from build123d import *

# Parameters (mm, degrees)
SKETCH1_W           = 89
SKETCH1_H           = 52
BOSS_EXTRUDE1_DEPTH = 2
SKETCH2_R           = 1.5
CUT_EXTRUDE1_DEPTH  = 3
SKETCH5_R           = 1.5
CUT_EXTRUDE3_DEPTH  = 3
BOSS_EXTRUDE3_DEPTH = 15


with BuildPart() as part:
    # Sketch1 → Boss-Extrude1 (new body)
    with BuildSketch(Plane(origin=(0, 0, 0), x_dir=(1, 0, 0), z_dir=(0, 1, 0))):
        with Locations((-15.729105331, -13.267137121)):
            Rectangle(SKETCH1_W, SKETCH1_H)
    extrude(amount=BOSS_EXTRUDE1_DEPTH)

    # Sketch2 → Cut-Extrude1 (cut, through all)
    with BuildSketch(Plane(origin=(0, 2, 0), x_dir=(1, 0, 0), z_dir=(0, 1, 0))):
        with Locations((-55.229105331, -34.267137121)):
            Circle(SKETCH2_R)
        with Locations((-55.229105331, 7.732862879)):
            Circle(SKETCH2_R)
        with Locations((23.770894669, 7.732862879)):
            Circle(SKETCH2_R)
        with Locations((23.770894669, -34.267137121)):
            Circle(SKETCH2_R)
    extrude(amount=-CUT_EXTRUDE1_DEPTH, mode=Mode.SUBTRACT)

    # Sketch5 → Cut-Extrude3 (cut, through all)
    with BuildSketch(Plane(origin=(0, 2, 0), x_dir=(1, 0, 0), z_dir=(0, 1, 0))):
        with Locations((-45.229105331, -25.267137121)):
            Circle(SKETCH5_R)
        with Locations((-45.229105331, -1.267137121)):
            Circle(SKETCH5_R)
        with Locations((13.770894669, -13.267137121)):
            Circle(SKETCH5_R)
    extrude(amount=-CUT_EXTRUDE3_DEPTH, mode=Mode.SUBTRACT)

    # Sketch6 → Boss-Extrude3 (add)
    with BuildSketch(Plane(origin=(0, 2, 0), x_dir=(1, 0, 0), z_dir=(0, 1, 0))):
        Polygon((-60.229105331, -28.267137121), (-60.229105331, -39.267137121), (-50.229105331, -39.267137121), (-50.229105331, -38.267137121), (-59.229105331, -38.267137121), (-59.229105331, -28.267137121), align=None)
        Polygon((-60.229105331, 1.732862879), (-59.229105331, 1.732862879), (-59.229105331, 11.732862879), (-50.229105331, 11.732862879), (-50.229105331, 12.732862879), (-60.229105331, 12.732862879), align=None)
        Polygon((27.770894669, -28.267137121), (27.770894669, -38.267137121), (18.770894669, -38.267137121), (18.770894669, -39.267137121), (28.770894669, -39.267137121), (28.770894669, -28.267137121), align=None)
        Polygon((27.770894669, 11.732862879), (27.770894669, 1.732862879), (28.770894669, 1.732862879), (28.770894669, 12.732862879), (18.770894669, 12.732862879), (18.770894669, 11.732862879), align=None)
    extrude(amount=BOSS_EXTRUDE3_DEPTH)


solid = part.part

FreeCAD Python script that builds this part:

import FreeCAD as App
import Part
import Sketcher

V = App.Vector

doc = App.newDocument("Part")
body = doc.addObject("PartDesign::Body", "Body")

# Sketch on XZ plane
sketch1 = body.newObject("Sketcher::SketchObject", "Sketch")
sketch1.AttachmentSupport = (doc.getObject("XZ_Plane"), [""])
sketch1.MapMode = "FlatFace"
sketch1.addGeometry(Part.LineSegment(V(-60, -13, 0), V(-60, 39, 0)), False)
sketch1.addGeometry(Part.LineSegment(V(-60, 39, 0), V(29, 39, 0)), False)
sketch1.addGeometry(Part.LineSegment(V(29, 39, 0), V(29, -13, 0)), False)
sketch1.addGeometry(Part.LineSegment(V(29, -13, 0), V(-60, -13, 0)), False)
sketch1.addConstraint(Sketcher.Constraint("Coincident", 0, 2, 1, 1))
sketch1.addConstraint(Sketcher.Constraint("Coincident", 1, 2, 2, 1))
sketch1.addConstraint(Sketcher.Constraint("Coincident", 2, 2, 3, 1))
sketch1.addConstraint(Sketcher.Constraint("Coincident", 3, 2, 0, 1))
sketch1.addConstraint(Sketcher.Constraint("Vertical", 0))
sketch1.addConstraint(Sketcher.Constraint("Horizontal", 1))
sketch1.addConstraint(Sketcher.Constraint("Vertical", 2))
sketch1.addConstraint(Sketcher.Constraint("Horizontal", 3))
sketch1.addConstraint(Sketcher.Constraint("DistanceX", 1, 1, 1, 2, 89.0))
sketch1.addConstraint(Sketcher.Constraint("DistanceY", 0, 1, 0, 2, 52.0))
sketch1.addConstraint(Sketcher.Constraint("DistanceX", 0, 2, -1, 1, 60.229105))
sketch1.addConstraint(Sketcher.Constraint("DistanceY", -1, 1, 0, 2, 39.267137))
pad1 = body.newObject("PartDesign::Pad", "Pad")
pad1.Profile = sketch1
pad1.Length = 2
pad1.Reversed = True

# Sketch on XZ plane
sketch2 = body.newObject("Sketcher::SketchObject", "Sketch001")
sketch2.AttachmentSupport = (doc.getObject("XZ_Plane"), [""])
sketch2.MapMode = "FlatFace"
sketch2.AttachmentOffset = App.Placement(V(0, 0, -2), App.Rotation())
sketch2.addGeometry(Part.Circle(V(-55.2, 34.3, 0), V(0, 0, 1), 1.5), False)
sketch2.addGeometry(Part.Circle(V(-55.2, -7.7, 0), V(0, 0, 1), 1.5), False)
sketch2.addGeometry(Part.Circle(V(23.8, -7.7, 0), V(0, 0, 1), 1.5), False)
sketch2.addGeometry(Part.Circle(V(23.8, 34.3, 0), V(0, 0, 1), 1.5), False)
sketch2.addConstraint(Sketcher.Constraint("Equal", 0, 1))
sketch2.addConstraint(Sketcher.Constraint("Equal", 1, 2))
sketch2.addConstraint(Sketcher.Constraint("Equal", 2, 3))
sketch2.addConstraint(Sketcher.Constraint("Horizontal", 1, 3, 2, 3))
sketch2.addConstraint(Sketcher.Constraint("Horizontal", 0, 3, 3, 3))
sketch2.addConstraint(Sketcher.Constraint("Vertical", 0, 3, 1, 3))
sketch2.addConstraint(Sketcher.Constraint("Vertical", 2, 3, 3, 3))
sketch2.addConstraint(Sketcher.Constraint("Diameter", 0, 3.0))
sketch2.addConstraint(Sketcher.Constraint("DistanceY", 1, 3, 0, 3, 42.0))
sketch2.addConstraint(Sketcher.Constraint("DistanceX", 1, 3, 2, 3, 79.0))
sketch2.addConstraint(Sketcher.Constraint("DistanceX", 0, 3, -1, 1, 55.229105))
sketch2.addConstraint(Sketcher.Constraint("DistanceY", -1, 1, 0, 3, 34.267137))
pocket1 = body.newObject("PartDesign::Pocket", "Pocket")
pocket1.Profile = sketch2
pocket1.Type = "ThroughAll"
pocket1.Reversed = True

# Sketch on XZ plane
sketch3 = body.newObject("Sketcher::SketchObject", "Sketch002")
sketch3.AttachmentSupport = (doc.getObject("XZ_Plane"), [""])
sketch3.MapMode = "FlatFace"
sketch3.AttachmentOffset = App.Placement(V(0, 0, -2), App.Rotation())
sketch3.addGeometry(Part.Circle(V(-45.2, 25.3, 0), V(0, 0, 1), 1.5), False)
sketch3.addGeometry(Part.Circle(V(-45.2, 1.3, 0), V(0, 0, 1), 1.5), False)
sketch3.addGeometry(Part.Circle(V(13.8, 13.3, 0), V(0, 0, 1), 1.5), False)
sketch3.addConstraint(Sketcher.Constraint("Equal", 0, 1))
sketch3.addConstraint(Sketcher.Constraint("Equal", 1, 2))
sketch3.addConstraint(Sketcher.Constraint("Vertical", 0, 3, 1, 3))
sketch3.addConstraint(Sketcher.Constraint("Diameter", 0, 3.0))
sketch3.addConstraint(Sketcher.Constraint("DistanceY", 1, 3, 0, 3, 24.0))
sketch3.addConstraint(Sketcher.Constraint("DistanceX", 0, 3, 2, 3, 59.0))
sketch3.addConstraint(Sketcher.Constraint("DistanceY", 2, 3, 0, 3, 12.0))
sketch3.addConstraint(Sketcher.Constraint("DistanceX", 0, 3, -1, 1, 45.229105))
sketch3.addConstraint(Sketcher.Constraint("DistanceY", -1, 1, 0, 3, 25.267137))
pocket2 = body.newObject("PartDesign::Pocket", "Pocket001")
pocket2.Profile = sketch3
pocket2.Type = "ThroughAll"
pocket2.Reversed = True

# Sketch on XZ plane
sketch4 = body.newObject("Sketcher::SketchObject", "Sketch003")
sketch4.AttachmentSupport = (doc.getObject("XZ_Plane"), [""])
sketch4.MapMode = "FlatFace"
sketch4.AttachmentOffset = App.Placement(V(0, 0, -2), App.Rotation())
sketch4.addGeometry(Part.LineSegment(V(-60.2, 28.3, 0), V(-60.2, 39.3, 0)), False)
sketch4.addGeometry(Part.LineSegment(V(-60.2, 39.3, 0), V(-50.2, 39.3, 0)), False)
sketch4.addGeometry(Part.LineSegment(V(-50.2, 39.3, 0), V(-50.2, 38.3, 0)), False)
sketch4.addGeometry(Part.LineSegment(V(-50.2, 38.3, 0), V(-59.2, 38.3, 0)), False)
sketch4.addGeometry(Part.LineSegment(V(-59.2, 38.3, 0), V(-59.2, 28.3, 0)), False)
sketch4.addGeometry(Part.LineSegment(V(-59.2, 28.3, 0), V(-60.2, 28.3, 0)), False)
sketch4.addGeometry(Part.LineSegment(V(-60.2, -1.7, 0), V(-59.2, -1.7, 0)), False)
sketch4.addGeometry(Part.LineSegment(V(-59.2, -1.7, 0), V(-59.2, -11.7, 0)), False)
sketch4.addGeometry(Part.LineSegment(V(-59.2, -11.7, 0), V(-50.2, -11.7, 0)), False)
sketch4.addGeometry(Part.LineSegment(V(-50.2, -11.7, 0), V(-50.2, -12.7, 0)), False)
sketch4.addGeometry(Part.LineSegment(V(-50.2, -12.7, 0), V(-60.2, -12.7, 0)), False)
sketch4.addGeometry(Part.LineSegment(V(-60.2, -12.7, 0), V(-60.2, -1.7, 0)), False)
sketch4.addGeometry(Part.LineSegment(V(27.8, 28.3, 0), V(27.8, 38.3, 0)), False)
sketch4.addGeometry(Part.LineSegment(V(27.8, 38.3, 0), V(18.8, 38.3, 0)), False)
sketch4.addGeometry(Part.LineSegment(V(18.8, 38.3, 0), V(18.8, 39.3, 0)), False)
sketch4.addGeometry(Part.LineSegment(V(18.8, 39.3, 0), V(28.8, 39.3, 0)), False)
sketch4.addGeometry(Part.LineSegment(V(28.8, 39.3, 0), V(28.8, 28.3, 0)), False)
sketch4.addGeometry(Part.LineSegment(V(28.8, 28.3, 0), V(27.8, 28.3, 0)), False)
sketch4.addGeometry(Part.LineSegment(V(27.8, -11.7, 0), V(27.8, -1.7, 0)), False)
sketch4.addGeometry(Part.LineSegment(V(27.8, -1.7, 0), V(28.8, -1.7, 0)), False)
sketch4.addGeometry(Part.LineSegment(V(28.8, -1.7, 0), V(28.8, -12.7, 0)), False)
sketch4.addGeometry(Part.LineSegment(V(28.8, -12.7, 0), V(18.8, -12.7, 0)), False)
sketch4.addGeometry(Part.LineSegment(V(18.8, -12.7, 0), V(18.8, -11.7, 0)), False)
sketch4.addGeometry(Part.LineSegment(V(18.8, -11.7, 0), V(27.8, -11.7, 0)), False)
sketch4.addConstraint(Sketcher.Constraint("Coincident", 0, 2, 1, 1))
sketch4.addConstraint(Sketcher.Constraint("Coincident", 1, 2, 2, 1))
sketch4.addConstraint(Sketcher.Constraint("Coincident", 2, 2, 3, 1))
sketch4.addConstraint(Sketcher.Constraint("Coincident", 3, 2, 4, 1))
sketch4.addConstraint(Sketcher.Constraint("Coincident", 4, 2, 5, 1))
sketch4.addConstraint(Sketcher.Constraint("Coincident", 5, 2, 0, 1))
sketch4.addConstraint(Sketcher.Constraint("Coincident", 6, 2, 7, 1))
sketch4.addConstraint(Sketcher.Constraint("Coincident", 7, 2, 8, 1))
sketch4.addConstraint(Sketcher.Constraint("Coincident", 8, 2, 9, 1))
sketch4.addConstraint(Sketcher.Constraint("Coincident", 9, 2, 10, 1))
sketch4.addConstraint(Sketcher.Constraint("Coincident", 10, 2, 11, 1))
sketch4.addConstraint(Sketcher.Constraint("Coincident", 11, 2, 6, 1))
sketch4.addConstraint(Sketcher.Constraint("Coincident", 12, 2, 13, 1))
sketch4.addConstraint(Sketcher.Constraint("Coincident", 13, 2, 14, 1))
sketch4.addConstraint(Sketcher.Constraint("Coincident", 14, 2, 15, 1))
sketch4.addConstraint(Sketcher.Constraint("Coincident", 15, 2, 16, 1))
sketch4.addConstraint(Sketcher.Constraint("Coincident", 16, 2, 17, 1))
sketch4.addConstraint(Sketcher.Constraint("Coincident", 17, 2, 12, 1))
sketch4.addConstraint(Sketcher.Constraint("Coincident", 18, 2, 19, 1))
sketch4.addConstraint(Sketcher.Constraint("Coincident", 19, 2, 20, 1))
sketch4.addConstraint(Sketcher.Constraint("Coincident", 20, 2, 21, 1))
sketch4.addConstraint(Sketcher.Constraint("Coincident", 21, 2, 22, 1))
sketch4.addConstraint(Sketcher.Constraint("Coincident", 22, 2, 23, 1))
sketch4.addConstraint(Sketcher.Constraint("Coincident", 23, 2, 18, 1))
sketch4.addConstraint(Sketcher.Constraint("Vertical", 0))
sketch4.addConstraint(Sketcher.Constraint("Horizontal", 1))
sketch4.addConstraint(Sketcher.Constraint("Vertical", 2))
sketch4.addConstraint(Sketcher.Constraint("Horizontal", 3))
sketch4.addConstraint(Sketcher.Constraint("Vertical", 4))
sketch4.addConstraint(Sketcher.Constraint("Horizontal", 5))
sketch4.addConstraint(Sketcher.Constraint("Horizontal", 6))
sketch4.addConstraint(Sketcher.Constraint("Vertical", 7))
sketch4.addConstraint(Sketcher.Constraint("Horizontal", 8))
sketch4.addConstraint(Sketcher.Constraint("Vertical", 9))
sketch4.addConstraint(Sketcher.Constraint("Horizontal", 10))
sketch4.addConstraint(Sketcher.Constraint("Vertical", 11))
sketch4.addConstraint(Sketcher.Constraint("Vertical", 12))
sketch4.addConstraint(Sketcher.Constraint("Horizontal", 13))
sketch4.addConstraint(Sketcher.Constraint("Vertical", 14))
sketch4.addConstraint(Sketcher.Constraint("Horizontal", 15))
sketch4.addConstraint(Sketcher.Constraint("Vertical", 16))
sketch4.addConstraint(Sketcher.Constraint("Horizontal", 17))
sketch4.addConstraint(Sketcher.Constraint("Vertical", 18))
sketch4.addConstraint(Sketcher.Constraint("Horizontal", 19))
sketch4.addConstraint(Sketcher.Constraint("Vertical", 20))
sketch4.addConstraint(Sketcher.Constraint("Horizontal", 21))
sketch4.addConstraint(Sketcher.Constraint("Vertical", 22))
sketch4.addConstraint(Sketcher.Constraint("Horizontal", 23))
sketch4.addConstraint(Sketcher.Constraint("Horizontal", 3, 2, 12, 2))
sketch4.addConstraint(Sketcher.Constraint("Horizontal", 1, 2, 14, 2))
sketch4.addConstraint(Sketcher.Constraint("Horizontal", 5, 2, 16, 2))
sketch4.addConstraint(Sketcher.Constraint("Horizontal", 11, 2, 18, 2))
sketch4.addConstraint(Sketcher.Constraint("Horizontal", 10, 2, 20, 2))
sketch4.addConstraint(Sketcher.Constraint("Horizontal", 8, 2, 22, 2))
sketch4.addConstraint(Sketcher.Constraint("Vertical", 4, 2, 6, 2))
sketch4.addConstraint(Sketcher.Constraint("Vertical", 2, 2, 8, 2))
sketch4.addConstraint(Sketcher.Constraint("Vertical", 5, 2, 10, 2))
sketch4.addConstraint(Sketcher.Constraint("Vertical", 17, 2, 18, 2))
sketch4.addConstraint(Sketcher.Constraint("Vertical", 16, 2, 19, 2))
sketch4.addConstraint(Sketcher.Constraint("Vertical", 14, 2, 21, 2))
sketch4.addConstraint(Sketcher.Constraint("Equal", 8, 13))
sketch4.addConstraint(Sketcher.Constraint("Equal", 10, 15))
sketch4.addConstraint(Sketcher.Constraint("Equal", 19, 2))
sketch4.addConstraint(Sketcher.Constraint("Equal", 21, 4))
sketch4.addConstraint(Sketcher.Constraint("Equal", 4, 7))
sketch4.addConstraint(Sketcher.Constraint("Equal", 2, 9))
sketch4.addConstraint(Sketcher.Constraint("DistanceX", 1, 1, 1, 2, 10.0))
sketch4.addConstraint(Sketcher.Constraint("DistanceX", 3, 2, 3, 1, 9.0))
sketch4.addConstraint(Sketcher.Constraint("DistanceY", 6, 2, 4, 2, 30.0))
sketch4.addConstraint(Sketcher.Constraint("DistanceX", 2, 2, 12, 2, 78.0))
sketch4.addConstraint(Sketcher.Constraint("DistanceX", 0, 2, -1, 1, 60.229105))
sketch4.addConstraint(Sketcher.Constraint("DistanceY", -1, 1, 0, 2, 39.267137))
pad2 = body.newObject("PartDesign::Pad", "Pad001")
pad2.Profile = sketch4
pad2.Length = 15
pad2.Reversed = True

doc.recompute()
